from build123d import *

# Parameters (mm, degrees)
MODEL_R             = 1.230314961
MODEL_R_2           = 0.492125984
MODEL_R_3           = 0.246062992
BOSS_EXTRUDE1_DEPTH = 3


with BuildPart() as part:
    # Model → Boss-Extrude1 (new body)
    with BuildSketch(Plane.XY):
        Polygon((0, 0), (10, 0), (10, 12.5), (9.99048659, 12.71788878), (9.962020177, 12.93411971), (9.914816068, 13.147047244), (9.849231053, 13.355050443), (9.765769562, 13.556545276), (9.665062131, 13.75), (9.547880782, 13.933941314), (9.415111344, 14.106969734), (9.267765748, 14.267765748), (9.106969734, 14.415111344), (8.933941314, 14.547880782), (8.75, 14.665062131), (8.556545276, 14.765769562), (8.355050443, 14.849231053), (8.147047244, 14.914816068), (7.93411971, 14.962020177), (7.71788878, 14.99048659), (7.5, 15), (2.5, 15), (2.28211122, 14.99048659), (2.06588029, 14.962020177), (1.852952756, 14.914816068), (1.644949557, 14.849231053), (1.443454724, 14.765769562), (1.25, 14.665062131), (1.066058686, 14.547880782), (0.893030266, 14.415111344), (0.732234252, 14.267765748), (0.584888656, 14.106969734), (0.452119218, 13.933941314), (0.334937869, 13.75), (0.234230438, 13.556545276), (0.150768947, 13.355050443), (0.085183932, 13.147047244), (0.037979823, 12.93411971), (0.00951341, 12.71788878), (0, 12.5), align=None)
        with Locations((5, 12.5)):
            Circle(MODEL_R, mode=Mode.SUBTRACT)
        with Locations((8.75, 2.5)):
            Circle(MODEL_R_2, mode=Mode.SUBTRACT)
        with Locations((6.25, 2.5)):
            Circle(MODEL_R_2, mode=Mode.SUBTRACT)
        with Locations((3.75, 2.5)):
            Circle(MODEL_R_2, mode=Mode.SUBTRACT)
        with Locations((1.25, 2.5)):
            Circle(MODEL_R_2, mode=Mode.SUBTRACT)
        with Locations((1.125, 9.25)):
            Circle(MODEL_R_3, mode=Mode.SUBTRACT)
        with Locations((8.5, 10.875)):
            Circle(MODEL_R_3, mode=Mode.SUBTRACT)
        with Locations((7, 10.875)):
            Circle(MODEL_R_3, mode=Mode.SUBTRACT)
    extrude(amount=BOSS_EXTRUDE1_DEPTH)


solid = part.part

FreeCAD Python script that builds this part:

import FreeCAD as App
import Part
import Sketcher
Q = App.Units.Quantity

doc = App.newDocument("Part")
params = doc.addObject("Spreadsheet::Sheet", "Params")
for row, (alias, value) in enumerate([
    ("sketch1_width", "10 mm"),
    ("sketch1_width2", "5 mm"),
    ("sketch1_height", "12.5 mm"),
    ("sketch1_height2", "12.5 mm"),
    ("pad1_length", "3 mm"),
], start=1):
    params.set(f"A{row}", alias)
    params.set(f"B{row}", "=" + value)
    params.setAlias(f"B{row}", alias)

body = doc.addObject("PartDesign::Body", "Body")

# Sketch on XY plane
sketch1 = body.newObject("Sketcher::SketchObject", "Sketch")
sketch1.AttachmentSupport = (doc.getObject("XY_Plane"), [""])
sketch1.MapMode = "FlatFace"
sketch1.addGeometry(Part.LineSegment(App.Vector(0, 0, 0), App.Vector(10, 0, 0)), False)
sketch1.addGeometry(Part.LineSegment(App.Vector(10, 0, 0), App.Vector(10, 12.5, 0)), False)
sketch1.addGeometry(Part.LineSegment(App.Vector(10, 12.5, 0), App.Vector(9.990487, 12.717889, 0)), False)
sketch1.addGeometry(Part.LineSegment(App.Vector(9.990487, 12.717889, 0), App.Vector(9.96202, 12.93412, 0)), False)
sketch1.addGeometry(Part.LineSegment(App.Vector(9.96202, 12.93412, 0), App.Vector(9.914816, 13.147047, 0)), False)
sketch1.addGeometry(Part.LineSegment(App.Vector(9.914816, 13.147047, 0), App.Vector(9.849231, 13.35505, 0)), False)
sketch1.addGeometry(Part.LineSegment(App.Vector(9.849231, 13.35505, 0), App.Vector(9.76577, 13.556545, 0)), False)
sketch1.addGeometry(Part.LineSegment(App.Vector(9.76577, 13.556545, 0), App.Vector(9.665062, 13.75, 0)), False)
sketch1.addGeometry(Part.LineSegment(App.Vector(9.665062, 13.75, 0), App.Vector(9.547881, 13.933941, 0)), False)
sketch1.addGeometry(Part.LineSegment(App.Vector(9.547881, 13.933941, 0), App.Vector(9.415111, 14.10697, 0)), False)
sketch1.addGeometry(Part.LineSegment(App.Vector(9.415111, 14.10697, 0), App.Vector(9.267766, 14.267766, 0)), False)
sketch1.addGeometry(Part.LineSegment(App.Vector(9.267766, 14.267766, 0), App.Vector(9.10697, 14.415111, 0)), False)
sketch1.addGeometry(Part.LineSegment(App.Vector(9.10697, 14.415111, 0), App.Vector(8.933941, 14.547881, 0)), False)
sketch1.addGeometry(Part.LineSegment(App.Vector(8.933941, 14.547881, 0), App.Vector(8.75, 14.665062, 0)), False)
sketch1.addGeometry(Part.LineSegment(App.Vector(8.75, 14.665062, 0), App.Vector(8.556545, 14.76577, 0)), False)
sketch1.addGeometry(Part.LineSegment(App.Vector(8.556545, 14.76577, 0), App.Vector(8.35505, 14.849231, 0)), False)
sketch1.addGeometry(Part.LineSegment(App.Vector(8.35505, 14.849231, 0), App.Vector(8.147047, 14.914816, 0)), False)
sketch1.addGeometry(Part.LineSegment(App.Vector(8.147047, 14.914816, 0), App.Vector(7.93412, 14.96202, 0)), False)
sketch1.addGeometry(Part.LineSegment(App.Vector(7.93412, 14.96202, 0), App.Vector(7.717889, 14.990487, 0)), False)
sketch1.addGeometry(Part.LineSegment(App.Vector(7.717889, 14.990487, 0), App.Vector(7.5, 15, 0)), False)
sketch1.addGeometry(Part.LineSegment(App.Vector(7.5, 15, 0), App.Vector(2.5, 15, 0)), False)
sketch1.addGeometry(Part.LineSegment(App.Vector(2.5, 15, 0), App.Vector(2.282111, 14.990487, 0)), False)
sketch1.addGeometry(Part.LineSegment(App.Vector(2.282111, 14.990487, 0), App.Vector(2.06588, 14.96202, 0)), False)
sketch1.addGeometry(Part.LineSegment(App.Vector(2.06588, 14.96202, 0), App.Vector(1.852953, 14.914816, 0)), False)
sketch1.addGeometry(Part.LineSegment(App.Vector(1.852953, 14.914816, 0), App.Vector(1.64495, 14.849231, 0)), False)
sketch1.addGeometry(Part.LineSegment(App.Vector(1.64495, 14.849231, 0), App.Vector(1.443455, 14.76577, 0)), False)
sketch1.addGeometry(Part.LineSegment(App.Vector(1.443455, 14.76577, 0), App.Vector(1.25, 14.665062, 0)), False)
sketch1.addGeometry(Part.LineSegment(App.Vector(1.25, 14.665062, 0), App.Vector(1.066059, 14.547881, 0)), False)
sketch1.addGeometry(Part.LineSegment(App.Vector(1.066059, 14.547881, 0), App.Vector(0.89303, 14.415111, 0)), False)
sketch1.addGeometry(Part.LineSegment(App.Vector(0.89303, 14.415111, 0), App.Vector(0.732234, 14.267766, 0)), False)
sketch1.addGeometry(Part.LineSegment(App.Vector(0.732234, 14.267766, 0), App.Vector(0.584889, 14.10697, 0)), False)
sketch1.addGeometry(Part.LineSegment(App.Vector(0.584889, 14.10697, 0), App.Vector(0.452119, 13.933941, 0)), False)
sketch1.addGeometry(Part.LineSegment(App.Vector(0.452119, 13.933941, 0), App.Vector(0.334938, 13.75, 0)), False)
sketch1.addGeometry(Part.LineSegment(App.Vector(0.334938, 13.75, 0), App.Vector(0.23423, 13.556545, 0)), False)
sketch1.addGeometry(Part.LineSegment(App.Vector(0.23423, 13.556545, 0), App.Vector(0.150769, 13.35505, 0)), False)
sketch1.addGeometry(Part.LineSegment(App.Vector(0.150769, 13.35505, 0), App.Vector(0.085184, 13.147047, 0)), False)
sketch1.addGeometry(Part.LineSegment(App.Vector(0.085184, 13.147047, 0), App.Vector(0.03798, 12.93412, 0)), False)
sketch1.addGeometry(Part.LineSegment(App.Vector(0.03798, 12.93412, 0), App.Vector(0.009513, 12.717889, 0)), False)
sketch1.addGeometry(Part.LineSegment(App.Vector(0.009513, 12.717889, 0), App.Vector(0, 12.5, 0)), False)
sketch1.addGeometry(Part.LineSegment(App.Vector(0, 12.5, 0), App.Vector(0, 0, 0)), False)
sketch1.addGeometry(Part.Circle(App.Vector(1.25, 2.5, 0), App.Vector(0, 0, 1), 0.492126), False)
sketch1.addGeometry(Part.Circle(App.Vector(3.75, 2.5, 0), App.Vector(0, 0, 1), 0.492126), False)
sketch1.addGeometry(Part.Circle(App.Vector(6.25, 2.5, 0), App.Vector(0, 0, 1), 0.492126), False)
sketch1.addGeometry(Part.Circle(App.Vector(8.75, 2.5, 0), App.Vector(0, 0, 1), 0.492126), False)
sketch1.addGeometry(Part.Circle(App.Vector(1.125, 9.25, 0), App.Vector(0, 0, 1), 0.246063), False)
sketch1.addGeometry(Part.Circle(App.Vector(7, 10.875, 0), App.Vector(0, 0, 1), 0.246063), False)
sketch1.addGeometry(Part.Circle(App.Vector(5, 12.5, 0), App.Vector(0, 0, 1), 1.230315), False)
sketch1.addGeometry(Part.Circle(App.Vector(8.5, 10.875, 0), App.Vector(0, 0, 1), 0.246063), False)
sketch1.addConstraint(Sketcher.Constraint("Coincident", 0, 2, 1, 1))
sketch1.addConstraint(Sketcher.Constraint("Coincident", 1, 2, 2, 1))
sketch1.addConstraint(Sketcher.Constraint("Coincident", 2, 2, 3, 1))
sketch1.addConstraint(Sketcher.Constraint("Coincident", 3, 2, 4, 1))
sketch1.addConstraint(Sketcher.Constraint("Coincident", 4, 2, 5, 1))
sketch1.addConstraint(Sketcher.Constraint("Coincident", 5, 2, 6, 1))
sketch1.addConstraint(Sketcher.Constraint("Coincident", 6, 2, 7, 1))
sketch1.addConstraint(Sketcher.Constraint("Coincident", 7, 2, 8, 1))
sketch1.addConstraint(Sketcher.Constraint("Coincident", 8, 2, 9, 1))
sketch1.addConstraint(Sketcher.Constraint("Coincident", 9, 2, 10, 1))
sketch1.addConstraint(Sketcher.Constraint("Coincident", 10, 2, 11, 1))
sketch1.addConstraint(Sketcher.Constraint("Coincident", 11, 2, 12, 1))
sketch1.addConstraint(Sketcher.Constraint("Coincident", 12, 2, 13, 1))
sketch1.addConstraint(Sketcher.Constraint("Coincident", 13, 2, 14, 1))
sketch1.addConstraint(Sketcher.Constraint("Coincident", 14, 2, 15, 1))
sketch1.addConstraint(Sketcher.Constraint("Coincident", 15, 2, 16, 1))
sketch1.addConstraint(Sketcher.Constraint("Coincident", 16, 2, 17, 1))
sketch1.addConstraint(Sketcher.Constraint("Coincident", 17, 2, 18, 1))
sketch1.addConstraint(Sketcher.Constraint("Coincident", 18, 2, 19, 1))
sketch1.addConstraint(Sketcher.Constraint("Coincident", 19, 2, 20, 1))
sketch1.addConstraint(Sketcher.Constraint("Coincident", 20, 2, 21, 1))
sketch1.addConstraint(Sketcher.Constraint("Coincident", 21, 2, 22, 1))
sketch1.addConstraint(Sketcher.Constraint("Coincident", 22, 2, 23, 1))
sketch1.addConstraint(Sketcher.Constraint("Coincident", 23, 2, 24, 1))
sketch1.addConstraint(Sketcher.Constraint("Coincident", 24, 2, 25, 1))
sketch1.addConstraint(Sketcher.Constraint("Coincident", 25, 2, 26, 1))
sketch1.addConstraint(Sketcher.Constraint("Coincident", 26, 2, 27, 1))
sketch1.addConstraint(Sketcher.Constraint("Coincident", 27, 2, 28, 1))
sketch1.addConstraint(Sketcher.Constraint("Coincident", 28, 2, 29, 1))
sketch1.addConstraint(Sketcher.Constraint("Coincident", 29, 2, 30, 1))
sketch1.addConstraint(Sketcher.Constraint("Coincident", 30, 2, 31, 1))
sketch1.addConstraint(Sketcher.Constraint("Coincident", 31, 2, 32, 1))
sketch1.addConstraint(Sketcher.Constraint("Coincident", 32, 2, 33, 1))
sketch1.addConstraint(Sketcher.Constraint("Coincident", 33, 2, 34, 1))
sketch1.addConstraint(Sketcher.Constraint("Coincident", 34, 2, 35, 1))
sketch1.addConstraint(Sketcher.Constraint("Coincident", 35, 2, 36, 1))
sketch1.addConstraint(Sketcher.Constraint("Coincident", 36, 2, 37, 1))
sketch1.addConstraint(Sketcher.Constraint("Coincident", 37, 2, 38, 1))
sketch1.addConstraint(Sketcher.Constraint("Coincident", 38, 2, 39, 1))
sketch1.addConstraint(Sketcher.Constraint("Coincident", 39, 2, 0, 1))
sketch1.addConstraint(Sketcher.Constraint("Horizontal", 0))
sketch1.addConstraint(Sketcher.Constraint("Vertical", 1))
sketch1.addConstraint(Sketcher.Constraint("Horizontal", 20))
sketch1.addConstraint(Sketcher.Constraint("Vertical", 39))
sketch1.addConstraint(Sketcher.Constraint("Coincident", 39, 2, -1, 1))
sketch1.addConstraint(Sketcher.Constraint("DistanceX", 0, 1, 0, 2, Q("10 mm")))
sketch1.addConstraint(Sketcher.Constraint("DistanceX", 20, 2, 20, 1, Q("5 mm")))
sketch1.addConstraint(Sketcher.Constraint("DistanceY", 1, 1, 1, 2, Q("12.5 mm")))
sketch1.addConstraint(Sketcher.Constraint("DistanceY", 39, 2, 39, 1, Q("12.5 mm")))
sketch1.addConstraint(Sketcher.Constraint("DistanceX", -1, 1, 45, 3, Q("7 mm")))
sketch1.addConstraint(Sketcher.Constraint("DistanceX", -1, 1, 46, 3, Q("5 mm")))
sketch1.addConstraint(Sketcher.Constraint("DistanceY", -1, 1, 19, 2, Q("15 mm")))
sketch1.addConstraint(Sketcher.Constraint("DistanceX", 40, 3, 42, 3, Q("5 mm")))
sketch1.addConstraint(Sketcher.Constraint("DistanceX", 41, 3, 43, 3, Q("5 mm")))
sketch1.addConstraint(Sketcher.Constraint("DistanceY", 41, 3, 46, 3, Q("10 mm")))
sketch1.addConstraint(Sketcher.Constraint("DistanceY", 42, 3, 46, 3, Q("10 mm")))
sketch1.addConstraint(Sketcher.Constraint("DistanceY", 40, 3, 46, 3, Q("10 mm")))
sketch1.addConstraint(Sketcher.Constraint("DistanceY", 43, 3, 1, 2, Q("10 mm")))
sketch1.addConstraint(Sketcher.Constraint("DistanceY", -1, 1, 40, 3, Q("2.5 mm")))
sketch1.addConstraint(Sketcher.Constraint("DistanceX", -1, 1, 47, 3, Q("8.5 mm")))
sketch1.addConstraint(Sketcher.Constraint("DistanceX", -1, 1, 19, 2, Q("7.5 mm")))
sketch1.addConstraint(Sketcher.Constraint("DistanceX", 40, 3, 41, 3, Q("2.5 mm")))
sketch1.addConstraint(Sketcher.Constraint("Diameter", 40, Q("0.984252 mm")))
sketch1.addConstraint(Sketcher.Constraint("Diameter", 41, Q("0.984252 mm")))
sketch1.addConstraint(Sketcher.Constraint("Diameter", 42, Q("0.984252 mm")))
sketch1.addConstraint(Sketcher.Constraint("Diameter", 43, Q("0.984252 mm")))
sketch1.addConstraint(Sketcher.Constraint("Diameter", 46, Q("2.46063 mm")))
sketch1.addConstraint(Sketcher.Constraint("DistanceX", -1, 1, 40, 3, Q("1.25 mm")))
sketch1.addConstraint(Sketcher.Constraint("DistanceY", -1, 1, 44, 3, Q("9.25 mm")))
sketch1.addConstraint(Sketcher.Constraint("DistanceY", -1, 1, 7, 2, Q("13.75 mm")))
sketch1.addConstraint(Sketcher.Constraint("DistanceX", -1, 1, 13, 2, Q("8.75 mm")))
sketch1.addConstraint(Sketcher.Constraint("DistanceX", -1, 1, 26, 2, Q("1.25 mm")))
sketch1.addConstraint(Sketcher.Constraint("DistanceY", -1, 1, 32, 2, Q("13.75 mm")))
sketch1.addConstraint(Sketcher.Constraint("Diameter", 44, Q("0.492126 mm")))
sketch1.addConstraint(Sketcher.Constraint("Diameter", 45, Q("0.492126 mm")))
sketch1.addConstraint(Sketcher.Constraint("Diameter", 47, Q("0.492126 mm")))
sketch1.addConstraint(Sketcher.Constraint("DistanceX", -1, 1, 44, 3, Q("1.125 mm")))
sketch1.addConstraint(Sketcher.Constraint("DistanceY", -1, 1, 45, 3, Q("10.875 mm")))
sketch1.addConstraint(Sketcher.Constraint("DistanceY", -1, 1, 47, 3, Q("10.875 mm")))
sketch1.addConstraint(Sketcher.Constraint("DistanceY", 4, 2, 6, 2, Q("0.409498 mm")))
sketch1.addConstraint(Sketcher.Constraint("DistanceX", 11, 2, 6, 2, Q("0.6588 mm")))
sketch1.addConstraint(Sketcher.Constraint("DistanceY", 9, 2, 14, 2, Q("0.6588 mm")))
sketch1.addConstraint(Sketcher.Constraint("DistanceX", 16, 2, 14, 2, Q("0.409498 mm")))
sketch1.addConstraint(Sketcher.Constraint("DistanceX", 25, 2, 23, 2, Q("0.409498 mm")))
sketch1.addConstraint(Sketcher.Constraint("DistanceY", 30, 2, 25, 2, Q("0.6588 mm")))
sketch1.addConstraint(Sketcher.Constraint("DistanceX", 33, 2, 28, 2, Q("0.6588 mm")))
sketch1.addConstraint(Sketcher.Constraint("DistanceY", 35, 2, 33, 2, Q("0.409498 mm")))
sketch1.addConstraint(Sketcher.Constraint("DistanceY", -1, 1, 2, 2, Q("12.717889 mm")))
sketch1.addConstraint(Sketcher.Constraint("DistanceX", -1, 1, 3, 2, Q("9.96202 mm")))
sketch1.addConstraint(Sketcher.Constraint("DistanceY", -1, 1, 3, 2, Q("12.93412 mm")))
sketch1.addConstraint(Sketcher.Constraint("DistanceX", -1, 1, 5, 2, Q("9.849231 mm")))
sketch1.addConstraint(Sketcher.Constraint("DistanceY", -1, 1, 5, 2, Q("13.35505 mm")))
sketch1.addConstraint(Sketcher.Constraint("DistanceX", -1, 1, 6, 2, Q("9.76577 mm")))
sketch1.addConstraint(Sketcher.Constraint("DistanceX", -1, 1, 8, 2, Q("9.547881 mm")))
sketch1.addConstraint(Sketcher.Constraint("DistanceY", -1, 1, 8, 2, Q("13.933941 mm")))
sketch1.addConstraint(Sketcher.Constraint("DistanceX", -1, 1, 9, 2, Q("9.415111 mm")))
sketch1.addConstraint(Sketcher.Constraint("DistanceY", -1, 1, 9, 2, Q("14.10697 mm")))
sketch1.addConstraint(Sketcher.Constraint("DistanceY", -1, 1, 11, 2, Q("14.415111 mm")))
sketch1.addConstraint(Sketcher.Constraint("DistanceX", -1, 1, 12, 2, Q("8.933941 mm")))
sketch1.addConstraint(Sketcher.Constraint("DistanceY", -1, 1, 12, 2, Q("14.547881 mm")))
sketch1.addConstraint(Sketcher.Constraint("DistanceX", -1, 1, 15, 2, Q("8.35505 mm")))
sketch1.addConstraint(Sketcher.Constraint("DistanceY", -1, 1, 15, 2, Q("14.849231 mm")))
sketch1.addConstraint(Sketcher.Constraint("DistanceX", -1, 1, 17, 2, Q("7.93412 mm")))
sketch1.addConstraint(Sketcher.Constraint("DistanceY", -1, 1, 17, 2, Q("14.96202 mm")))
sketch1.addConstraint(Sketcher.Constraint("DistanceX", -1, 1, 18, 2, Q("7.717889 mm")))
sketch1.addConstraint(Sketcher.Constraint("DistanceX", -1, 1, 21, 2, Q("2.282111 mm")))
sketch1.addConstraint(Sketcher.Constraint("DistanceX", -1, 1, 22, 2, Q("2.06588 mm")))
sketch1.addConstraint(Sketcher.Constraint("DistanceY", -1, 1, 22, 2, Q("14.96202 mm")))
sketch1.addConstraint(Sketcher.Constraint("DistanceX", -1, 1, 24, 2, Q("1.64495 mm")))
sketch1.addConstraint(Sketcher.Constraint("DistanceY", -1, 1, 24, 2, Q("14.849231 mm")))
sketch1.addConstraint(Sketcher.Constraint("DistanceY", -1, 1, 25, 2, Q("14.76577 mm")))
sketch1.addConstraint(Sketcher.Constraint("DistanceX", -1, 1, 27, 2, Q("1.066059 mm")))
sketch1.addConstraint(Sketcher.Constraint("DistanceY", -1, 1, 27, 2, Q("14.547881 mm")))
sketch1.addConstraint(Sketcher.Constraint("DistanceX", -1, 1, 28, 2, Q("0.89303 mm")))
sketch1.addConstraint(Sketcher.Constraint("DistanceY", -1, 1, 28, 2, Q("14.415111 mm")))
sketch1.addConstraint(Sketcher.Constraint("DistanceX", -1, 1, 30, 2, Q("0.584889 mm")))
sketch1.addConstraint(Sketcher.Constraint("DistanceX", -1, 1, 31, 2, Q("0.452119 mm")))
sketch1.addConstraint(Sketcher.Constraint("DistanceY", -1, 1, 31, 2, Q("13.933941 mm")))
sketch1.addConstraint(Sketcher.Constraint("DistanceX", -1, 1, 34, 2, Q("0.150769 mm")))
sketch1.addConstraint(Sketcher.Constraint("DistanceY", -1, 1, 34, 2, Q("13.35505 mm")))
sketch1.addConstraint(Sketcher.Constraint("DistanceX", -1, 1, 36, 2, Q("0.03798 mm")))
sketch1.addConstraint(Sketcher.Constraint("DistanceY", -1, 1, 36, 2, Q("12.93412 mm")))
sketch1.addConstraint(Sketcher.Constraint("DistanceY", -1, 1, 37, 2, Q("12.717889 mm")))
sketch1.addConstraint(Sketcher.Constraint("DistanceX", 4, 2, 2, 2, Q("0.075671 mm")))
sketch1.addConstraint(Sketcher.Constraint("DistanceY", 2, 2, 4, 2, Q("0.429158 mm")))
sketch1.addConstraint(Sketcher.Constraint("DistanceX", 7, 2, 5, 2, Q("0.184169 mm")))
sketch1.addConstraint(Sketcher.Constraint("DistanceY", 6, 2, 10, 2, Q("0.71122 mm")))
sketch1.addConstraint(Sketcher.Constraint("DistanceY", 12, 2, 13, 2, Q("0.117181 mm")))
sketch1.addConstraint(Sketcher.Constraint("DistanceX", 14, 2, 10, 2, Q("0.71122 mm")))
sketch1.addConstraint(Sketcher.Constraint("DistanceX", 18, 2, 16, 2, Q("0.429158 mm")))
sketch1.addConstraint(Sketcher.Constraint("DistanceY", 16, 2, 18, 2, Q("0.075671 mm")))
sketch1.addConstraint(Sketcher.Constraint("DistanceX", 23, 2, 21, 2, Q("0.429158 mm")))
sketch1.addConstraint(Sketcher.Constraint("DistanceY", 23, 2, 21, 2, Q("0.075671 mm")))
sketch1.addConstraint(Sketcher.Constraint("DistanceY", 26, 2, 24, 2, Q("0.184169 mm")))
sketch1.addConstraint(Sketcher.Constraint("DistanceX", 29, 2, 25, 2, Q("0.71122 mm")))
sketch1.addConstraint(Sketcher.Constraint("DistanceX", 32, 2, 31, 2, Q("0.117181 mm")))
sketch1.addConstraint(Sketcher.Constraint("DistanceY", 33, 2, 29, 2, Q("0.71122 mm")))
sketch1.addConstraint(Sketcher.Constraint("DistanceX", 37, 2, 35, 2, Q("0.075671 mm")))
sketch1.addConstraint(Sketcher.Constraint("DistanceY", 37, 2, 35, 2, Q("0.429158 mm")))
sketch1.addConstraint(Sketcher.Constraint("Distance", 2, Q("0.218096 mm")))
sketch1.addConstraint(Sketcher.Constraint("Distance", 16, Q("0.218098 mm")))
sketch1.addConstraint(Sketcher.Constraint("Distance", 21, Q("0.218096 mm")))
sketch1.addConstraint(Sketcher.Constraint("Distance", 35, Q("0.218098 mm")))
sketch1.setExpression("Constraints[45]", "Params.sketch1_width")
sketch1.setExpression("Constraints[46]", "Params.sketch1_width2")
sketch1.setExpression("Constraints[47]", "Params.sketch1_height")
sketch1.setExpression("Constraints[48]", "Params.sketch1_height2")
pad1 = body.newObject("PartDesign::Pad", "Pad")
pad1.Profile = sketch1
pad1.setExpression("Length", "Params.pad1_length")

doc.recompute()
